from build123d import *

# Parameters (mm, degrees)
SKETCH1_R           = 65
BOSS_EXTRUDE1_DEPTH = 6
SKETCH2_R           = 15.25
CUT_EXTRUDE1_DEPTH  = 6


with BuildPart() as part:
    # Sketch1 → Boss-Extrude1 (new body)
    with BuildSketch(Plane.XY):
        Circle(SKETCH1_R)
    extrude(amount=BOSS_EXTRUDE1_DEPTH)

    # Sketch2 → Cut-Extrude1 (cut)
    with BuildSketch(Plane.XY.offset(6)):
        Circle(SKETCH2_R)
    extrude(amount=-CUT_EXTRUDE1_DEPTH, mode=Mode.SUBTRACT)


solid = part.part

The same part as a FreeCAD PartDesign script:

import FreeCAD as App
import Part
import Sketcher

doc = App.newDocument("Part")
body = doc.addObject("PartDesign::Body", "Body")

# Sketch on XY plane
sketch1 = doc.addObject("Sketcher::SketchObject", "Sketch")
body.addObject(sketch1)
sketch1.AttachmentSupport = (doc.XY_Plane, [""])
sketch1.MapMode = "FlatFace"
sketch1.addGeometry(Part.Circle(App.Vector(0, 0, 0), App.Vector(0, 0, 1), 65), False)
sketch1.addConstraint(Sketcher.Constraint("Coincident", 0, 3, -1, 1))
sketch1.addConstraint(Sketcher.Constraint("Diameter", 0, 130.0))
pad1 = doc.addObject("PartDesign::Pad", "Pad")
body.addObject(pad1)
pad1.Profile = sketch1
pad1.Length = 6

# Sketch on XY plane
sketch2 = doc.addObject("Sketcher::SketchObject", "Sketch001")
body.addObject(sketch2)
sketch2.AttachmentSupport = (doc.XY_Plane, [""])
sketch2.MapMode = "FlatFace"
sketch2.AttachmentOffset = App.Placement(App.Vector(0, 0, 6), App.Rotation())
sketch2.addGeometry(Part.Circle(App.Vector(0, 0, 0), App.Vector(0, 0, 1), 15), False)
sketch2.addConstraint(Sketcher.Constraint("Coincident", 0, 3, -1, 1))
sketch2.addConstraint(Sketcher.Constraint("Diameter", 0, 30.5))
pocket1 = doc.addObject("PartDesign::Pocket", "Pocket")
body.addObject(pocket1)
pocket1.Profile = sketch2
pocket1.Length = 6

doc.recompute()
